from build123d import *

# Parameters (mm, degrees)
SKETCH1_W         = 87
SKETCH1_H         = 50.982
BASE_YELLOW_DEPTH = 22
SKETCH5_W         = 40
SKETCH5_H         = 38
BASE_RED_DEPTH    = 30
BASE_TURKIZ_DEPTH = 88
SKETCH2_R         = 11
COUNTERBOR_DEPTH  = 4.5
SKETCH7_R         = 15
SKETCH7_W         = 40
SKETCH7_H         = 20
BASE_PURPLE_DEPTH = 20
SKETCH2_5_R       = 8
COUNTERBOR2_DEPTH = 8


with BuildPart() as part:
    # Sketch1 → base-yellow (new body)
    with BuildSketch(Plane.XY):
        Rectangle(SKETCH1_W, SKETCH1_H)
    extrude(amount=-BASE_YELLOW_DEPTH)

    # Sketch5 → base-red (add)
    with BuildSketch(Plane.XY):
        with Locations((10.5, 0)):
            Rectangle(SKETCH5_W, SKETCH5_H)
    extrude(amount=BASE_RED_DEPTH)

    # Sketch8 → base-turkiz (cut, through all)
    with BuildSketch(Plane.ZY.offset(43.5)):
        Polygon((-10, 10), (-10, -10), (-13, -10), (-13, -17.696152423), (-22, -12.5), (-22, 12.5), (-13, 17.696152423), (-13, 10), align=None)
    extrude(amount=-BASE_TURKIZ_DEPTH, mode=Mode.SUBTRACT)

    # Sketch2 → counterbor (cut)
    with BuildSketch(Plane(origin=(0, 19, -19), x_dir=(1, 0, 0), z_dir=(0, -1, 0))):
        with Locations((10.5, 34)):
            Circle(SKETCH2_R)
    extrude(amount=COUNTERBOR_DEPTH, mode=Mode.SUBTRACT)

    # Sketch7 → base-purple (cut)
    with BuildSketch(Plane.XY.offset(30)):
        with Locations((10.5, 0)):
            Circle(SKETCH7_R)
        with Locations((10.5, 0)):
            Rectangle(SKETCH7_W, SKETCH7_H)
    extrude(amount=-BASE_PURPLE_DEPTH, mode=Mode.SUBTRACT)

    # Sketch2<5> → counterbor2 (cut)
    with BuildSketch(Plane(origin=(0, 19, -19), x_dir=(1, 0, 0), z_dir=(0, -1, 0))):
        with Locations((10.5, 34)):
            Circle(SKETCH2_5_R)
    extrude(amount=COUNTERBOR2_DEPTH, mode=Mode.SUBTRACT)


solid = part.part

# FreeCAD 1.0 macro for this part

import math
import FreeCAD as App
import Part
import Sketcher
from FreeCAD import Vector
Q = App.Units.Quantity


def add_polygon(sketch, points):
    """Adds a closed chain of lines whose ends are joined by coincident constraints."""
    first, n = sketch.GeometryCount, len(points)
    for a, b in zip(points, points[1:] + points[:1]):
        sketch.addGeometry(Part.LineSegment(App.Vector(*a, 0), App.Vector(*b, 0)), False)
    for i in range(n):
        sketch.addConstraint(Sketcher.Constraint("Coincident", first + i, 2, first + (i + 1) % n, 1))

doc = App.newDocument("Part")
params = doc.addObject("Spreadsheet::Sheet", "Params")
for row, (alias, value) in enumerate([
    ("sketch1_width", "87 mm"),
    ("pad1_length", "22 mm"),
    ("sketch2_width", "40 mm"),
    ("sketch2_height", "38 mm"),
    ("pad2_length", "30 mm"),
    ("sketch3_width", "20 mm"),
    ("sketch3_width2", "25 mm"),
    ("sketch3_height", "3 mm"),
    ("sketch4_diameter", "22 mm"),
    ("pocket2_length", "4.5 mm"),
    ("sketch5_radius", "15 mm"),
    ("sketch5_height", "20 mm"),
    ("pocket3_length", "20 mm"),
    ("sketch6_diameter", "16 mm"),
    ("pocket4_length", "8 mm"),
], start=1):
    params.set(f"A{row}", alias)
    params.set(f"B{row}", "=" + value)
    params.setAlias(f"B{row}", alias)

body = doc.addObject("PartDesign::Body", "Body")

# Sketch on XY plane
sketch1 = doc.addObject("Sketcher::SketchObject", "Sketch")
body.addObject(sketch1)
sketch1.AttachmentSupport = (doc.XY_Plane, [""])
sketch1.MapMode = "FlatFace"
add_polygon(sketch1, [(-43.5, 25.491), (-43.5, -25.491), (43.5, -25.491), (43.5, 25.491)])  # lines 0-3
sketch1.addConstraint([
    Sketcher.Constraint("Vertical", 0),
    Sketcher.Constraint("Horizontal", 1),
    Sketcher.Constraint("Vertical", 2),
    Sketcher.Constraint("Horizontal", 3),
    Sketcher.Constraint("Symmetric", 0, 2, 2, 2, -1, 1),
    Sketcher.Constraint("DistanceX", 1, 1, 1, 2, Q("87 mm")),
    Sketcher.Constraint("DistanceY", 0, 2, 0, 1, Q("50.982 mm")),
])
sketch1.setExpression("Constraints[9]", "Params.sketch1_width")
pad1 = doc.addObject("PartDesign::Pad", "Pad")
body.addObject(pad1)
pad1.Profile = sketch1
pad1.setExpression("Length", "Params.pad1_length")
pad1.Reversed = True

# Sketch on XY plane
sketch2 = doc.addObject("Sketcher::SketchObject", "Sketch001")
body.addObject(sketch2)
sketch2.AttachmentSupport = (doc.XY_Plane, [""])
sketch2.MapMode = "FlatFace"
add_polygon(sketch2, [(-9.5, 19), (-9.5, -19), (30.5, -19), (30.5, 19)])  # lines 0-3
sketch2.addConstraint([
    Sketcher.Constraint("Vertical", 0),
    Sketcher.Constraint("Horizontal", 1),
    Sketcher.Constraint("Vertical", 2),
    Sketcher.Constraint("Horizontal", 3),
    Sketcher.Constraint("DistanceX", 1, 1, 1, 2, Q("40 mm")),
    Sketcher.Constraint("DistanceY", 0, 2, 0, 1, Q("38 mm")),
    Sketcher.Constraint("DistanceY", 0, 2, -1, 1, Q("19 mm")),
    Sketcher.Constraint("DistanceX", 0, 2, -1, 1, Q("9.5 mm")),
])
sketch2.setExpression("Constraints[8]", "Params.sketch2_width")
sketch2.setExpression("Constraints[9]", "Params.sketch2_height")
pad2 = doc.addObject("PartDesign::Pad", "Pad001")
body.addObject(pad2)
pad2.Profile = sketch2
pad2.setExpression("Length", "Params.pad2_length")

# Sketch on YZ plane
sketch3 = doc.addObject("Sketcher::SketchObject", "Sketch002")
body.addObject(sketch3)
sketch3.AttachmentSupport = (doc.YZ_Plane, [""])
sketch3.MapMode = "FlatFace"
sketch3.AttachmentOffset = App.Placement(Vector(0, 0, -43.5), App.Rotation())
add_polygon(sketch3, [(-10, -10), (10, -10), (10, -13), (17.696152, -13), (12.5, -22), (-12.5, -22), (-17.696152, -13), (-10, -13)])  # lines 0-7
sketch3.addConstraint([
    Sketcher.Constraint("Horizontal", 0),
    Sketcher.Constraint("Vertical", 1),
    Sketcher.Constraint("Horizontal", 2),
    Sketcher.Constraint("Horizontal", 4),
    Sketcher.Constraint("Horizontal", 6),
    Sketcher.Constraint("Vertical", 7),
    Sketcher.Constraint("Symmetric", 2, 2, 5, 2, -2),
    Sketcher.Constraint("Equal", 2, 6),
    Sketcher.Constraint("Equal", 3, 5),
    Sketcher.Constraint("DistanceX", 0, 1, 0, 2, Q("20 mm")),
    Sketcher.Constraint("DistanceX", 4, 2, 4, 1, Q("25 mm")),
    Sketcher.Constraint("DistanceY", 1, 2, 1, 1, Q("3 mm")),
    Sketcher.Constraint("Angle", 3, Q("-120 deg")),
    Sketcher.Constraint("DistanceY", 0, 2, -1, 1, Q("10 mm")),
    Sketcher.Constraint("DistanceY", 3, 2, -1, 1, Q("22 mm")),
])
sketch3.setExpression("Constraints[17]", "Params.sketch3_width")
sketch3.setExpression("Constraints[18]", "Params.sketch3_width2")
sketch3.setExpression("Constraints[19]", "Params.sketch3_height")
pocket1 = doc.addObject("PartDesign::Pocket", "Pocket")
body.addObject(pocket1)
pocket1.Profile = sketch3
pocket1.Type = "ThroughAll"
pocket1.Reversed = True

# Sketch on XZ plane
sketch4 = doc.addObject("Sketcher::SketchObject", "Sketch003")
body.addObject(sketch4)
sketch4.AttachmentSupport = (doc.XZ_Plane, [""])
sketch4.MapMode = "FlatFace"
sketch4.AttachmentOffset = App.Placement(Vector(0, 0, -19), App.Rotation())
sketch4.addGeometry(Part.Circle(Vector(10.5, 15, 0), Vector(0, 0, 1), 11), False)
sketch4.addConstraint([
    Sketcher.Constraint("Diameter", 0, Q("22 mm")),
    Sketcher.Constraint("DistanceY", -1, 1, 0, 3, Q("15 mm")),
    Sketcher.Constraint("DistanceX", -1, 1, 0, 3, Q("10.5 mm")),
])
sketch4.setExpression("Constraints[0]", "Params.sketch4_diameter")
pocket2 = doc.addObject("PartDesign::Pocket", "Pocket001")
body.addObject(pocket2)
pocket2.Profile = sketch4
pocket2.setExpression("Length", "Params.pocket2_length")
pocket2.Reversed = True

# Sketch on XY plane
sketch5 = doc.addObject("Sketcher::SketchObject", "Sketch004")
body.addObject(sketch5)
sketch5.AttachmentSupport = (doc.XY_Plane, [""])
sketch5.MapMode = "FlatFace"
sketch5.AttachmentOffset = App.Placement(Vector(0, 0, 30), App.Rotation())
sketch5.addGeometry([
    Part.LineSegment(Vector(21.68034, -10, 0), Vector(30.5, -10, 0)),  # 0
    Part.LineSegment(Vector(30.5, -10, 0), Vector(30.5, 10, 0)),  # 1
    Part.LineSegment(Vector(30.5, 10, 0), Vector(21.68034, 10, 0)),  # 2
    Part.ArcOfCircle(Part.Circle(Vector(10.5, 0, 0), Vector(0, 0, 1), 15), math.radians(41.810315), math.radians(138.189685)),  # 3
    Part.LineSegment(Vector(-0.68034, 10, 0), Vector(-9.5, 10, 0)),  # 4
    Part.LineSegment(Vector(-9.5, 10, 0), Vector(-9.5, -10, 0)),  # 5
    Part.LineSegment(Vector(-9.5, -10, 0), Vector(-0.68034, -10, 0)),  # 6
    Part.ArcOfCircle(Part.Circle(Vector(10.5, 0, 0), Vector(0, 0, 1), 15), math.radians(-138.189685), math.radians(-41.810315)),  # 7
], False)
sketch5.addConstraint([
    Sketcher.Constraint("Coincident", 0, 2, 1, 1),
    Sketcher.Constraint("Coincident", 1, 2, 2, 1),
    Sketcher.Constraint("Coincident", 2, 2, 3, 1),
    Sketcher.Constraint("Coincident", 3, 2, 4, 1),
    Sketcher.Constraint("Coincident", 4, 2, 5, 1),
    Sketcher.Constraint("Coincident", 5, 2, 6, 1),
    Sketcher.Constraint("Coincident", 6, 2, 7, 1),
    Sketcher.Constraint("Coincident", 7, 2, 0, 1),
    Sketcher.Constraint("Horizontal", 0),
    Sketcher.Constraint("Vertical", 1),
    Sketcher.Constraint("Horizontal", 2),
    Sketcher.Constraint("Horizontal", 4),
    Sketcher.Constraint("Vertical", 5),
    Sketcher.Constraint("Horizontal", 6),
    Sketcher.Constraint("Coincident", 7, 3, 3, 3),
    Sketcher.Constraint("Equal", 3, 7),
    Sketcher.Constraint("Symmetric", 3, 2, 6, 2, -1),
    Sketcher.Constraint("Horizontal", 2, 2, 3, 2),
    Sketcher.Constraint("Horizontal", 0, 2, 5, 2),
    Sketcher.Constraint("Equal", 2, 4),
    Sketcher.Constraint("Radius", 3, Q("15 mm")),
    Sketcher.Constraint("DistanceY", 1, 1, 1, 2, Q("20 mm")),
    Sketcher.Constraint("DistanceX", 3, 3, 0, 2, Q("20 mm")),
    Sketcher.Constraint("DistanceX", -1, 1, 3, 3, Q("10.5 mm")),
])
sketch5.setExpression("Constraints[20]", "Params.sketch5_radius")
sketch5.setExpression("Constraints[21]", "Params.sketch5_height")
pocket3 = doc.addObject("PartDesign::Pocket", "Pocket002")
body.addObject(pocket3)
pocket3.Profile = sketch5
pocket3.setExpression("Length", "Params.pocket3_length")

# Sketch on XZ plane
sketch6 = doc.addObject("Sketcher::SketchObject", "Sketch005")
body.addObject(sketch6)
sketch6.AttachmentSupport = (doc.XZ_Plane, [""])
sketch6.MapMode = "FlatFace"
sketch6.AttachmentOffset = App.Placement(Vector(0, 0, -19), App.Rotation())
sketch6.addGeometry(Part.Circle(Vector(10.5, 15, 0), Vector(0, 0, 1), 8), False)
sketch6.addConstraint([
    Sketcher.Constraint("Diameter", 0, Q("16 mm")),
    Sketcher.Constraint("DistanceY", -1, 1, 0, 3, Q("15 mm")),
    Sketcher.Constraint("DistanceX", -1, 1, 0, 3, Q("10.5 mm")),
])
sketch6.setExpression("Constraints[0]", "Params.sketch6_diameter")
pocket4 = doc.addObject("PartDesign::Pocket", "Pocket003")
body.addObject(pocket4)
pocket4.Profile = sketch6
pocket4.setExpression("Length", "Params.pocket4_length")
pocket4.Reversed = True

doc.recompute()
